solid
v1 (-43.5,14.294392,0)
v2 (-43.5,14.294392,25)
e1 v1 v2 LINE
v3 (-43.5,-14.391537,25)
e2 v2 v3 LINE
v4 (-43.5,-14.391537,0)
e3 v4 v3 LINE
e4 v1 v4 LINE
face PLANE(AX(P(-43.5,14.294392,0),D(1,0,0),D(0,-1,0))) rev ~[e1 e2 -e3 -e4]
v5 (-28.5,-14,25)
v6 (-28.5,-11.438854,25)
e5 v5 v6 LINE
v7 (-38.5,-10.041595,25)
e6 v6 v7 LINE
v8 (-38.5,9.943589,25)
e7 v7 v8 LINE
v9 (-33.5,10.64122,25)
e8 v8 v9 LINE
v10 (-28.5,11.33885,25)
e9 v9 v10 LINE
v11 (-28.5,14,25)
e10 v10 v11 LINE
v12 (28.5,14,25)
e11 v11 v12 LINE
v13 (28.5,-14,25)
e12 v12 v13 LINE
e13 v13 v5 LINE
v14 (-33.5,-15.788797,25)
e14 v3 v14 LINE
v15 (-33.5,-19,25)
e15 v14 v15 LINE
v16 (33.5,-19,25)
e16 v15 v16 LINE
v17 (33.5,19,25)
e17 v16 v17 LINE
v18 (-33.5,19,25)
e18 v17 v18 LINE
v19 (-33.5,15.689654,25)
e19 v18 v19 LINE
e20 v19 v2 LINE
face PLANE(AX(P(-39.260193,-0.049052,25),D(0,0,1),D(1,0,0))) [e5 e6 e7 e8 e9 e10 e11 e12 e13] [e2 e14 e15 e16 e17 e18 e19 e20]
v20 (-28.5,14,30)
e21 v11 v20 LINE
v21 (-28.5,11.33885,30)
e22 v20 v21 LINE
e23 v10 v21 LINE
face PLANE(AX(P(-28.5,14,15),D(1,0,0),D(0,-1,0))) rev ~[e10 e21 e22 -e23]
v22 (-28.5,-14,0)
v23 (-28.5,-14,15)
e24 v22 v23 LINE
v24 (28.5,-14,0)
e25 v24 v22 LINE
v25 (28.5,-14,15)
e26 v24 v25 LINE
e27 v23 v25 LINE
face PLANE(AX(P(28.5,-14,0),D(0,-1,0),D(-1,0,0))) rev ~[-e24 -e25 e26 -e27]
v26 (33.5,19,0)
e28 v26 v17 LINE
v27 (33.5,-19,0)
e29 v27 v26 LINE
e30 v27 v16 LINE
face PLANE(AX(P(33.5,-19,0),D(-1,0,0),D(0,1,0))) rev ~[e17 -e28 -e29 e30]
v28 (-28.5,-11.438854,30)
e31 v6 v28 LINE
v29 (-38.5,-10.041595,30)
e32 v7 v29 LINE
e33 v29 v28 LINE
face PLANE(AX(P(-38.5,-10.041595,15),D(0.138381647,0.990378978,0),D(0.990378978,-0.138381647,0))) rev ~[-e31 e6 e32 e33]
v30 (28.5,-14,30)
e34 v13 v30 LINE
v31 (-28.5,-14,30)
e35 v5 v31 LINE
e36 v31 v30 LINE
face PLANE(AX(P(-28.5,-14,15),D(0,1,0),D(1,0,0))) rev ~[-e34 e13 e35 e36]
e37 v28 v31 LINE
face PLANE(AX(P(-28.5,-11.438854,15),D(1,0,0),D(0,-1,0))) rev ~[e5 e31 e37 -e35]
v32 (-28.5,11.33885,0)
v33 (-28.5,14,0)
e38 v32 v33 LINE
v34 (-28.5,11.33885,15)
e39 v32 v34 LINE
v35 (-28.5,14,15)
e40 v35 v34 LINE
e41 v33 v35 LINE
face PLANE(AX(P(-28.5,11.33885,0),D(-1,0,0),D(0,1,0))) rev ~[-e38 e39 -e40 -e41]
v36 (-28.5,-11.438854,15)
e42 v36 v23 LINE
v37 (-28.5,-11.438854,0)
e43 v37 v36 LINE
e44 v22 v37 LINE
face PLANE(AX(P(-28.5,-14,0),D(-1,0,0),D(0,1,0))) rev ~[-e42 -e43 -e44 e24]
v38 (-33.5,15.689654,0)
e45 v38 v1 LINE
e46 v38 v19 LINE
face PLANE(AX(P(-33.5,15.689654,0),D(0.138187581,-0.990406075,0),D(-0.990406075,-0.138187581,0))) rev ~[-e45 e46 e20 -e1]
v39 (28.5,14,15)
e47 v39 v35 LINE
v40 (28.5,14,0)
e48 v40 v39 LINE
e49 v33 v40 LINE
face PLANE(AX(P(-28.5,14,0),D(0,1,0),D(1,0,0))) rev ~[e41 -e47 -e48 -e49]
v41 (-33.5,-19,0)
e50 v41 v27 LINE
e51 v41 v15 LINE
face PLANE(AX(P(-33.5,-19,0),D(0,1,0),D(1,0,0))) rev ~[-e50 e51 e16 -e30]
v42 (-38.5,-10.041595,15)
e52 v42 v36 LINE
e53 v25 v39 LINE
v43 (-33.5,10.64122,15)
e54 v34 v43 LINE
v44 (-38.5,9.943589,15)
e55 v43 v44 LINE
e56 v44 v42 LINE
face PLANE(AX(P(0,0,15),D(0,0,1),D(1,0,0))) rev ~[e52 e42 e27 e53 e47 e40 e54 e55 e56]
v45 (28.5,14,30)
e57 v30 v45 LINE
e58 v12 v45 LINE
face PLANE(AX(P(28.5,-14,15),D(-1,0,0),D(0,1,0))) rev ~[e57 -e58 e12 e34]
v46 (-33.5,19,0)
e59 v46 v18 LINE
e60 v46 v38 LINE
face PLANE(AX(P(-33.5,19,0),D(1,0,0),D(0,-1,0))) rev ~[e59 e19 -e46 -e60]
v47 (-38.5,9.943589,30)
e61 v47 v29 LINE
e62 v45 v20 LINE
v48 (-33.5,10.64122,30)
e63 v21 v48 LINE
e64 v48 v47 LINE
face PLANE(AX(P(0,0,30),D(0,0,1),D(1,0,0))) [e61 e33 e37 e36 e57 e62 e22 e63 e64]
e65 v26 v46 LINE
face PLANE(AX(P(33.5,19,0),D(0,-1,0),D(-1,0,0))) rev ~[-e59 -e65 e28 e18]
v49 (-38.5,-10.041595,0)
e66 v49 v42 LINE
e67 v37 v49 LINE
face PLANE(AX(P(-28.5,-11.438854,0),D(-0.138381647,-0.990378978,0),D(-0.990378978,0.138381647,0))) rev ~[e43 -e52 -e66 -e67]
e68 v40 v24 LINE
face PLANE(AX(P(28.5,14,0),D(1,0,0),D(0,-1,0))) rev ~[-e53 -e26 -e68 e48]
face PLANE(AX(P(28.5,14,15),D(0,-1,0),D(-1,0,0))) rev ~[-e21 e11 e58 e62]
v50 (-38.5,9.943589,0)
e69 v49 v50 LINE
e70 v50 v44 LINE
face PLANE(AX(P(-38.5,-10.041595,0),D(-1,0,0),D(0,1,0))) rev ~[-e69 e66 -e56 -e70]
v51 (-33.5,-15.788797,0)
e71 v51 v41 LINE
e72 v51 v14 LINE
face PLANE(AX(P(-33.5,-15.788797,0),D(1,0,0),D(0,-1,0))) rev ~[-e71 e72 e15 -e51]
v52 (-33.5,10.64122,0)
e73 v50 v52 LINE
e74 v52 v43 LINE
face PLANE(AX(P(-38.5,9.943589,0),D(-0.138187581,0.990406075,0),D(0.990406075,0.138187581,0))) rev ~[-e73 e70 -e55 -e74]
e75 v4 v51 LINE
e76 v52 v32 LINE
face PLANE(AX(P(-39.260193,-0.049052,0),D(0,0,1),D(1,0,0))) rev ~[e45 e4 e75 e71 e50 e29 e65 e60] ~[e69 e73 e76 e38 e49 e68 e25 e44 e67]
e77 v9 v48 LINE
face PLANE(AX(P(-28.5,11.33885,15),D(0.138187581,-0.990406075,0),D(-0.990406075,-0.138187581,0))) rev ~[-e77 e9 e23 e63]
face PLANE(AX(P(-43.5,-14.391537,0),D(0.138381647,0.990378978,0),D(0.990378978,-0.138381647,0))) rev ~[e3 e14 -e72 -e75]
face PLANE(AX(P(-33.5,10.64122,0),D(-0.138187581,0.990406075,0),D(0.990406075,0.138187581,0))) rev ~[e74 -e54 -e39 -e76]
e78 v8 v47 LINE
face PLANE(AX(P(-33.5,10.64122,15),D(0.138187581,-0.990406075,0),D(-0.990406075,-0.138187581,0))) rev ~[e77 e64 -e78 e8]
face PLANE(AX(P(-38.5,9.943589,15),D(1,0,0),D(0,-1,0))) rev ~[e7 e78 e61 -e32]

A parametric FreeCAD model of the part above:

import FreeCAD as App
import Part
import Sketcher
from FreeCAD import Vector
Q = App.Units.Quantity

doc = App.newDocument("Part")
params = doc.addObject("Spreadsheet::Sheet", "Params")
for row, (alias, value) in enumerate([
    ("sketch1_width", "57 mm"),
    ("sketch1_height", "28 mm"),
    ("pad1_length", "15 mm"),
    ("sketch2_width", "67 mm"),
    ("sketch2_width2", "57 mm"),
    ("sketch2_height", "38 mm"),
    ("sketch2_height2", "28 mm"),
    ("pad2_length", "25 mm"),
], start=1):
    params.set(f"A{row}", alias)
    params.set(f"B{row}", "=" + value)
    params.setAlias(f"B{row}", alias)

body = doc.addObject("PartDesign::Body", "Body")

sketch1 = body.newObject("Sketcher::SketchObject", "Sketch")
sketch1.AttachmentSupport = (doc.getObject("XY_Plane"), [""])
sketch1.MapMode = "FlatFace"
sketch1.AttachmentOffset = App.Placement(Vector(0, 0, 15), App.Rotation())
sketch1.addGeometry([
    Part.LineSegment(Vector(28.5, -14, 0), Vector(28.5, 14, 0)),
    Part.LineSegment(Vector(28.5, 14, 0), Vector(-28.5, 14, 0)),
    Part.LineSegment(Vector(-28.5, 14, 0), Vector(-28.5, 11.3, 0)),
    Part.LineSegment(Vector(-28.5, 11.3, 0), Vector(-33.5, 10.6, 0)),
    Part.LineSegment(Vector(-33.5, 10.6, 0), Vector(-38.5, 9.9, 0)),
    Part.LineSegment(Vector(-38.5, 9.9, 0), Vector(-38.5, -10, 0)),
    Part.LineSegment(Vector(-38.5, -10, 0), Vector(-28.5, -11.4, 0)),
    Part.LineSegment(Vector(-28.5, -11.4, 0), Vector(-28.5, -14, 0)),
    Part.LineSegment(Vector(-28.5, -14, 0), Vector(28.5, -14, 0)),
], False)
sketch1.addConstraint([
    Sketcher.Constraint("Coincident", 0, 2, 1, 1),
    Sketcher.Constraint("Coincident", 1, 2, 2, 1),
    Sketcher.Constraint("Coincident", 2, 2, 3, 1),
    Sketcher.Constraint("Coincident", 3, 2, 4, 1),
    Sketcher.Constraint("Coincident", 4, 2, 5, 1),
    Sketcher.Constraint("Coincident", 5, 2, 6, 1),
    Sketcher.Constraint("Coincident", 6, 2, 7, 1),
    Sketcher.Constraint("Coincident", 7, 2, 8, 1),
    Sketcher.Constraint("Coincident", 8, 2, 0, 1),
    Sketcher.Constraint("Vertical", 0),
    Sketcher.Constraint("Horizontal", 1),
    Sketcher.Constraint("Vertical", 2),
    Sketcher.Constraint("Vertical", 5),
    Sketcher.Constraint("Vertical", 7),
    Sketcher.Constraint("Horizontal", 8),
    Sketcher.Constraint("Symmetric", 0, 2, 7, 2, -1, 1),
    Sketcher.Constraint("Parallel", 3, 4),
    Sketcher.Constraint("Vertical", 2, 2, 6, 2),
    Sketcher.Constraint("Equal", 3, 4),
    Sketcher.Constraint("DistanceX", 1, 2, 1, 1, Q("57 mm")),
    Sketcher.Constraint("DistanceY", 0, 1, 0, 2, Q("28 mm")),
    Sketcher.Constraint("DistanceX", 3, 2, 2, 2, Q("5 mm")),
    Sketcher.Constraint("DistanceY", 2, 2, 2, 1, Q("2.66115 mm")),
    Sketcher.Constraint("DistanceY", 5, 2, 5, 1, Q("19.985183 mm")),
    Sketcher.Constraint("DistanceY", 7, 2, 7, 1, Q("2.561146 mm")),
    Sketcher.Constraint("DistanceY", -1, 1, 3, 2, Q("10.64122 mm")),
])
sketch1.setExpression("Constraints[19]", "Params.sketch1_width")
sketch1.setExpression("Constraints[20]", "Params.sketch1_height")
pad1 = body.newObject("PartDesign::Pad", "Pad")
pad1.Profile = sketch1
pad1.setExpression("Length", "Params.pad1_length")

sketch2 = body.newObject("Sketcher::SketchObject", "Sketch001")
sketch2.AttachmentSupport = (doc.getObject("XY_Plane"), [""])
sketch2.MapMode = "FlatFace"
sketch2.addGeometry([
    Part.LineSegment(Vector(-33.5, 15.7, 0), Vector(-43.5, 14.3, 0)),
    Part.LineSegment(Vector(-43.5, 14.3, 0), Vector(-43.5, -14.4, 0)),
    Part.LineSegment(Vector(-43.5, -14.4, 0), Vector(-33.5, -15.8, 0)),
    Part.LineSegment(Vector(-33.5, -15.8, 0), Vector(-33.5, -19, 0)),
    Part.LineSegment(Vector(-33.5, -19, 0), Vector(33.5, -19, 0)),
    Part.LineSegment(Vector(33.5, -19, 0), Vector(33.5, 19, 0)),
    Part.LineSegment(Vector(33.5, 19, 0), Vector(-33.5, 19, 0)),
    Part.LineSegment(Vector(-33.5, 19, 0), Vector(-33.5, 15.7, 0)),
    Part.LineSegment(Vector(-38.5, 9.9, 0), Vector(-33.5, 10.6, 0)),
    Part.LineSegment(Vector(-33.5, 10.6, 0), Vector(-28.5, 11.3, 0)),
    Part.LineSegment(Vector(-28.5, 11.3, 0), Vector(-28.5, 14, 0)),
    Part.LineSegment(Vector(-28.5, 14, 0), Vector(28.5, 14, 0)),
    Part.LineSegment(Vector(28.5, 14, 0), Vector(28.5, -14, 0)),
    Part.LineSegment(Vector(28.5, -14, 0), Vector(-28.5, -14, 0)),
    Part.LineSegment(Vector(-28.5, -14, 0), Vector(-28.5, -11.4, 0)),
    Part.LineSegment(Vector(-28.5, -11.4, 0), Vector(-38.5, -10, 0)),
    Part.LineSegment(Vector(-38.5, -10, 0), Vector(-38.5, 9.9, 0)),
], False)
sketch2.addConstraint([
    Sketcher.Constraint("Coincident", 0, 2, 1, 1),
    Sketcher.Constraint("Coincident", 1, 2, 2, 1),
    Sketcher.Constraint("Coincident", 2, 2, 3, 1),
    Sketcher.Constraint("Coincident", 3, 2, 4, 1),
    Sketcher.Constraint("Coincident", 4, 2, 5, 1),
    Sketcher.Constraint("Coincident", 5, 2, 6, 1),
    Sketcher.Constraint("Coincident", 6, 2, 7, 1),
    Sketcher.Constraint("Coincident", 7, 2, 0, 1),
    Sketcher.Constraint("Coincident", 8, 2, 9, 1),
    Sketcher.Constraint("Coincident", 9, 2, 10, 1),
    Sketcher.Constraint("Coincident", 10, 2, 11, 1),
    Sketcher.Constraint("Coincident", 11, 2, 12, 1),
    Sketcher.Constraint("Coincident", 12, 2, 13, 1),
    Sketcher.Constraint("Coincident", 13, 2, 14, 1),
    Sketcher.Constraint("Coincident", 14, 2, 15, 1),
    Sketcher.Constraint("Coincident", 15, 2, 16, 1),
    Sketcher.Constraint("Coincident", 16, 2, 8, 1),
    Sketcher.Constraint("Vertical", 1),
    Sketcher.Constraint("Vertical", 3),
    Sketcher.Constraint("Horizontal", 4),
    Sketcher.Constraint("Vertical", 5),
    Sketcher.Constraint("Horizontal", 6),
    Sketcher.Constraint("Vertical", 7),
    Sketcher.Constraint("Vertical", 10),
    Sketcher.Constraint("Horizontal", 11),
    Sketcher.Constraint("Vertical", 12),
    Sketcher.Constraint("Horizontal", 13),
    Sketcher.Constraint("Vertical", 14),
    Sketcher.Constraint("Vertical", 16),
    Sketcher.Constraint("Symmetric", 3, 2, 5, 2, -1, 1),
    Sketcher.Constraint("Symmetric", 10, 2, 12, 2, -1, 1),
    Sketcher.Constraint("Parallel", 0, 8),
    Sketcher.Constraint("Parallel", 8, 9),
    Sketcher.Constraint("Parallel", 2, 15),
    Sketcher.Constraint("Vertical", 3, 2, 6, 2),
    Sketcher.Constraint("Vertical", 7, 2, 8, 2),
    Sketcher.Constraint("Vertical", 10, 2, 13, 2),
    Sketcher.Constraint("Equal", 8, 9),
    Sketcher.Constraint("Equal", 2, 15),
    Sketcher.Constraint("DistanceX", 4, 1, 4, 2, Q("67 mm")),
    Sketcher.Constraint("DistanceX", 11, 1, 11, 2, Q("57 mm")),
    Sketcher.Constraint("DistanceY", 5, 1, 5, 2, Q("38 mm")),
    Sketcher.Constraint("DistanceY", 12, 2, 12, 1, Q("28 mm")),
    Sketcher.Constraint("DistanceY", 1, 2, 1, 1, Q("28.685929 mm")),
    Sketcher.Constraint("DistanceY", 10, 1, 10, 2, Q("2.66115 mm")),
    Sketcher.Constraint("Distance", 0, Q("10.096869 mm")),
    Sketcher.Constraint("DistanceY", 3, 2, 3, 1, Q("3.211203 mm")),
    Sketcher.Constraint("DistanceY", 7, 2, 7, 1, Q("3.310346 mm")),
    Sketcher.Constraint("DistanceY", 14, 1, 14, 2, Q("2.561146 mm")),
])
sketch2.setExpression("Constraints[39]", "Params.sketch2_width")
sketch2.setExpression("Constraints[40]", "Params.sketch2_width2")
sketch2.setExpression("Constraints[41]", "Params.sketch2_height")
sketch2.setExpression("Constraints[42]", "Params.sketch2_height2")
pad2 = body.newObject("PartDesign::Pad", "Pad001")
pad2.Profile = sketch2
pad2.setExpression("Length", "Params.pad2_length")

doc.recompute()
